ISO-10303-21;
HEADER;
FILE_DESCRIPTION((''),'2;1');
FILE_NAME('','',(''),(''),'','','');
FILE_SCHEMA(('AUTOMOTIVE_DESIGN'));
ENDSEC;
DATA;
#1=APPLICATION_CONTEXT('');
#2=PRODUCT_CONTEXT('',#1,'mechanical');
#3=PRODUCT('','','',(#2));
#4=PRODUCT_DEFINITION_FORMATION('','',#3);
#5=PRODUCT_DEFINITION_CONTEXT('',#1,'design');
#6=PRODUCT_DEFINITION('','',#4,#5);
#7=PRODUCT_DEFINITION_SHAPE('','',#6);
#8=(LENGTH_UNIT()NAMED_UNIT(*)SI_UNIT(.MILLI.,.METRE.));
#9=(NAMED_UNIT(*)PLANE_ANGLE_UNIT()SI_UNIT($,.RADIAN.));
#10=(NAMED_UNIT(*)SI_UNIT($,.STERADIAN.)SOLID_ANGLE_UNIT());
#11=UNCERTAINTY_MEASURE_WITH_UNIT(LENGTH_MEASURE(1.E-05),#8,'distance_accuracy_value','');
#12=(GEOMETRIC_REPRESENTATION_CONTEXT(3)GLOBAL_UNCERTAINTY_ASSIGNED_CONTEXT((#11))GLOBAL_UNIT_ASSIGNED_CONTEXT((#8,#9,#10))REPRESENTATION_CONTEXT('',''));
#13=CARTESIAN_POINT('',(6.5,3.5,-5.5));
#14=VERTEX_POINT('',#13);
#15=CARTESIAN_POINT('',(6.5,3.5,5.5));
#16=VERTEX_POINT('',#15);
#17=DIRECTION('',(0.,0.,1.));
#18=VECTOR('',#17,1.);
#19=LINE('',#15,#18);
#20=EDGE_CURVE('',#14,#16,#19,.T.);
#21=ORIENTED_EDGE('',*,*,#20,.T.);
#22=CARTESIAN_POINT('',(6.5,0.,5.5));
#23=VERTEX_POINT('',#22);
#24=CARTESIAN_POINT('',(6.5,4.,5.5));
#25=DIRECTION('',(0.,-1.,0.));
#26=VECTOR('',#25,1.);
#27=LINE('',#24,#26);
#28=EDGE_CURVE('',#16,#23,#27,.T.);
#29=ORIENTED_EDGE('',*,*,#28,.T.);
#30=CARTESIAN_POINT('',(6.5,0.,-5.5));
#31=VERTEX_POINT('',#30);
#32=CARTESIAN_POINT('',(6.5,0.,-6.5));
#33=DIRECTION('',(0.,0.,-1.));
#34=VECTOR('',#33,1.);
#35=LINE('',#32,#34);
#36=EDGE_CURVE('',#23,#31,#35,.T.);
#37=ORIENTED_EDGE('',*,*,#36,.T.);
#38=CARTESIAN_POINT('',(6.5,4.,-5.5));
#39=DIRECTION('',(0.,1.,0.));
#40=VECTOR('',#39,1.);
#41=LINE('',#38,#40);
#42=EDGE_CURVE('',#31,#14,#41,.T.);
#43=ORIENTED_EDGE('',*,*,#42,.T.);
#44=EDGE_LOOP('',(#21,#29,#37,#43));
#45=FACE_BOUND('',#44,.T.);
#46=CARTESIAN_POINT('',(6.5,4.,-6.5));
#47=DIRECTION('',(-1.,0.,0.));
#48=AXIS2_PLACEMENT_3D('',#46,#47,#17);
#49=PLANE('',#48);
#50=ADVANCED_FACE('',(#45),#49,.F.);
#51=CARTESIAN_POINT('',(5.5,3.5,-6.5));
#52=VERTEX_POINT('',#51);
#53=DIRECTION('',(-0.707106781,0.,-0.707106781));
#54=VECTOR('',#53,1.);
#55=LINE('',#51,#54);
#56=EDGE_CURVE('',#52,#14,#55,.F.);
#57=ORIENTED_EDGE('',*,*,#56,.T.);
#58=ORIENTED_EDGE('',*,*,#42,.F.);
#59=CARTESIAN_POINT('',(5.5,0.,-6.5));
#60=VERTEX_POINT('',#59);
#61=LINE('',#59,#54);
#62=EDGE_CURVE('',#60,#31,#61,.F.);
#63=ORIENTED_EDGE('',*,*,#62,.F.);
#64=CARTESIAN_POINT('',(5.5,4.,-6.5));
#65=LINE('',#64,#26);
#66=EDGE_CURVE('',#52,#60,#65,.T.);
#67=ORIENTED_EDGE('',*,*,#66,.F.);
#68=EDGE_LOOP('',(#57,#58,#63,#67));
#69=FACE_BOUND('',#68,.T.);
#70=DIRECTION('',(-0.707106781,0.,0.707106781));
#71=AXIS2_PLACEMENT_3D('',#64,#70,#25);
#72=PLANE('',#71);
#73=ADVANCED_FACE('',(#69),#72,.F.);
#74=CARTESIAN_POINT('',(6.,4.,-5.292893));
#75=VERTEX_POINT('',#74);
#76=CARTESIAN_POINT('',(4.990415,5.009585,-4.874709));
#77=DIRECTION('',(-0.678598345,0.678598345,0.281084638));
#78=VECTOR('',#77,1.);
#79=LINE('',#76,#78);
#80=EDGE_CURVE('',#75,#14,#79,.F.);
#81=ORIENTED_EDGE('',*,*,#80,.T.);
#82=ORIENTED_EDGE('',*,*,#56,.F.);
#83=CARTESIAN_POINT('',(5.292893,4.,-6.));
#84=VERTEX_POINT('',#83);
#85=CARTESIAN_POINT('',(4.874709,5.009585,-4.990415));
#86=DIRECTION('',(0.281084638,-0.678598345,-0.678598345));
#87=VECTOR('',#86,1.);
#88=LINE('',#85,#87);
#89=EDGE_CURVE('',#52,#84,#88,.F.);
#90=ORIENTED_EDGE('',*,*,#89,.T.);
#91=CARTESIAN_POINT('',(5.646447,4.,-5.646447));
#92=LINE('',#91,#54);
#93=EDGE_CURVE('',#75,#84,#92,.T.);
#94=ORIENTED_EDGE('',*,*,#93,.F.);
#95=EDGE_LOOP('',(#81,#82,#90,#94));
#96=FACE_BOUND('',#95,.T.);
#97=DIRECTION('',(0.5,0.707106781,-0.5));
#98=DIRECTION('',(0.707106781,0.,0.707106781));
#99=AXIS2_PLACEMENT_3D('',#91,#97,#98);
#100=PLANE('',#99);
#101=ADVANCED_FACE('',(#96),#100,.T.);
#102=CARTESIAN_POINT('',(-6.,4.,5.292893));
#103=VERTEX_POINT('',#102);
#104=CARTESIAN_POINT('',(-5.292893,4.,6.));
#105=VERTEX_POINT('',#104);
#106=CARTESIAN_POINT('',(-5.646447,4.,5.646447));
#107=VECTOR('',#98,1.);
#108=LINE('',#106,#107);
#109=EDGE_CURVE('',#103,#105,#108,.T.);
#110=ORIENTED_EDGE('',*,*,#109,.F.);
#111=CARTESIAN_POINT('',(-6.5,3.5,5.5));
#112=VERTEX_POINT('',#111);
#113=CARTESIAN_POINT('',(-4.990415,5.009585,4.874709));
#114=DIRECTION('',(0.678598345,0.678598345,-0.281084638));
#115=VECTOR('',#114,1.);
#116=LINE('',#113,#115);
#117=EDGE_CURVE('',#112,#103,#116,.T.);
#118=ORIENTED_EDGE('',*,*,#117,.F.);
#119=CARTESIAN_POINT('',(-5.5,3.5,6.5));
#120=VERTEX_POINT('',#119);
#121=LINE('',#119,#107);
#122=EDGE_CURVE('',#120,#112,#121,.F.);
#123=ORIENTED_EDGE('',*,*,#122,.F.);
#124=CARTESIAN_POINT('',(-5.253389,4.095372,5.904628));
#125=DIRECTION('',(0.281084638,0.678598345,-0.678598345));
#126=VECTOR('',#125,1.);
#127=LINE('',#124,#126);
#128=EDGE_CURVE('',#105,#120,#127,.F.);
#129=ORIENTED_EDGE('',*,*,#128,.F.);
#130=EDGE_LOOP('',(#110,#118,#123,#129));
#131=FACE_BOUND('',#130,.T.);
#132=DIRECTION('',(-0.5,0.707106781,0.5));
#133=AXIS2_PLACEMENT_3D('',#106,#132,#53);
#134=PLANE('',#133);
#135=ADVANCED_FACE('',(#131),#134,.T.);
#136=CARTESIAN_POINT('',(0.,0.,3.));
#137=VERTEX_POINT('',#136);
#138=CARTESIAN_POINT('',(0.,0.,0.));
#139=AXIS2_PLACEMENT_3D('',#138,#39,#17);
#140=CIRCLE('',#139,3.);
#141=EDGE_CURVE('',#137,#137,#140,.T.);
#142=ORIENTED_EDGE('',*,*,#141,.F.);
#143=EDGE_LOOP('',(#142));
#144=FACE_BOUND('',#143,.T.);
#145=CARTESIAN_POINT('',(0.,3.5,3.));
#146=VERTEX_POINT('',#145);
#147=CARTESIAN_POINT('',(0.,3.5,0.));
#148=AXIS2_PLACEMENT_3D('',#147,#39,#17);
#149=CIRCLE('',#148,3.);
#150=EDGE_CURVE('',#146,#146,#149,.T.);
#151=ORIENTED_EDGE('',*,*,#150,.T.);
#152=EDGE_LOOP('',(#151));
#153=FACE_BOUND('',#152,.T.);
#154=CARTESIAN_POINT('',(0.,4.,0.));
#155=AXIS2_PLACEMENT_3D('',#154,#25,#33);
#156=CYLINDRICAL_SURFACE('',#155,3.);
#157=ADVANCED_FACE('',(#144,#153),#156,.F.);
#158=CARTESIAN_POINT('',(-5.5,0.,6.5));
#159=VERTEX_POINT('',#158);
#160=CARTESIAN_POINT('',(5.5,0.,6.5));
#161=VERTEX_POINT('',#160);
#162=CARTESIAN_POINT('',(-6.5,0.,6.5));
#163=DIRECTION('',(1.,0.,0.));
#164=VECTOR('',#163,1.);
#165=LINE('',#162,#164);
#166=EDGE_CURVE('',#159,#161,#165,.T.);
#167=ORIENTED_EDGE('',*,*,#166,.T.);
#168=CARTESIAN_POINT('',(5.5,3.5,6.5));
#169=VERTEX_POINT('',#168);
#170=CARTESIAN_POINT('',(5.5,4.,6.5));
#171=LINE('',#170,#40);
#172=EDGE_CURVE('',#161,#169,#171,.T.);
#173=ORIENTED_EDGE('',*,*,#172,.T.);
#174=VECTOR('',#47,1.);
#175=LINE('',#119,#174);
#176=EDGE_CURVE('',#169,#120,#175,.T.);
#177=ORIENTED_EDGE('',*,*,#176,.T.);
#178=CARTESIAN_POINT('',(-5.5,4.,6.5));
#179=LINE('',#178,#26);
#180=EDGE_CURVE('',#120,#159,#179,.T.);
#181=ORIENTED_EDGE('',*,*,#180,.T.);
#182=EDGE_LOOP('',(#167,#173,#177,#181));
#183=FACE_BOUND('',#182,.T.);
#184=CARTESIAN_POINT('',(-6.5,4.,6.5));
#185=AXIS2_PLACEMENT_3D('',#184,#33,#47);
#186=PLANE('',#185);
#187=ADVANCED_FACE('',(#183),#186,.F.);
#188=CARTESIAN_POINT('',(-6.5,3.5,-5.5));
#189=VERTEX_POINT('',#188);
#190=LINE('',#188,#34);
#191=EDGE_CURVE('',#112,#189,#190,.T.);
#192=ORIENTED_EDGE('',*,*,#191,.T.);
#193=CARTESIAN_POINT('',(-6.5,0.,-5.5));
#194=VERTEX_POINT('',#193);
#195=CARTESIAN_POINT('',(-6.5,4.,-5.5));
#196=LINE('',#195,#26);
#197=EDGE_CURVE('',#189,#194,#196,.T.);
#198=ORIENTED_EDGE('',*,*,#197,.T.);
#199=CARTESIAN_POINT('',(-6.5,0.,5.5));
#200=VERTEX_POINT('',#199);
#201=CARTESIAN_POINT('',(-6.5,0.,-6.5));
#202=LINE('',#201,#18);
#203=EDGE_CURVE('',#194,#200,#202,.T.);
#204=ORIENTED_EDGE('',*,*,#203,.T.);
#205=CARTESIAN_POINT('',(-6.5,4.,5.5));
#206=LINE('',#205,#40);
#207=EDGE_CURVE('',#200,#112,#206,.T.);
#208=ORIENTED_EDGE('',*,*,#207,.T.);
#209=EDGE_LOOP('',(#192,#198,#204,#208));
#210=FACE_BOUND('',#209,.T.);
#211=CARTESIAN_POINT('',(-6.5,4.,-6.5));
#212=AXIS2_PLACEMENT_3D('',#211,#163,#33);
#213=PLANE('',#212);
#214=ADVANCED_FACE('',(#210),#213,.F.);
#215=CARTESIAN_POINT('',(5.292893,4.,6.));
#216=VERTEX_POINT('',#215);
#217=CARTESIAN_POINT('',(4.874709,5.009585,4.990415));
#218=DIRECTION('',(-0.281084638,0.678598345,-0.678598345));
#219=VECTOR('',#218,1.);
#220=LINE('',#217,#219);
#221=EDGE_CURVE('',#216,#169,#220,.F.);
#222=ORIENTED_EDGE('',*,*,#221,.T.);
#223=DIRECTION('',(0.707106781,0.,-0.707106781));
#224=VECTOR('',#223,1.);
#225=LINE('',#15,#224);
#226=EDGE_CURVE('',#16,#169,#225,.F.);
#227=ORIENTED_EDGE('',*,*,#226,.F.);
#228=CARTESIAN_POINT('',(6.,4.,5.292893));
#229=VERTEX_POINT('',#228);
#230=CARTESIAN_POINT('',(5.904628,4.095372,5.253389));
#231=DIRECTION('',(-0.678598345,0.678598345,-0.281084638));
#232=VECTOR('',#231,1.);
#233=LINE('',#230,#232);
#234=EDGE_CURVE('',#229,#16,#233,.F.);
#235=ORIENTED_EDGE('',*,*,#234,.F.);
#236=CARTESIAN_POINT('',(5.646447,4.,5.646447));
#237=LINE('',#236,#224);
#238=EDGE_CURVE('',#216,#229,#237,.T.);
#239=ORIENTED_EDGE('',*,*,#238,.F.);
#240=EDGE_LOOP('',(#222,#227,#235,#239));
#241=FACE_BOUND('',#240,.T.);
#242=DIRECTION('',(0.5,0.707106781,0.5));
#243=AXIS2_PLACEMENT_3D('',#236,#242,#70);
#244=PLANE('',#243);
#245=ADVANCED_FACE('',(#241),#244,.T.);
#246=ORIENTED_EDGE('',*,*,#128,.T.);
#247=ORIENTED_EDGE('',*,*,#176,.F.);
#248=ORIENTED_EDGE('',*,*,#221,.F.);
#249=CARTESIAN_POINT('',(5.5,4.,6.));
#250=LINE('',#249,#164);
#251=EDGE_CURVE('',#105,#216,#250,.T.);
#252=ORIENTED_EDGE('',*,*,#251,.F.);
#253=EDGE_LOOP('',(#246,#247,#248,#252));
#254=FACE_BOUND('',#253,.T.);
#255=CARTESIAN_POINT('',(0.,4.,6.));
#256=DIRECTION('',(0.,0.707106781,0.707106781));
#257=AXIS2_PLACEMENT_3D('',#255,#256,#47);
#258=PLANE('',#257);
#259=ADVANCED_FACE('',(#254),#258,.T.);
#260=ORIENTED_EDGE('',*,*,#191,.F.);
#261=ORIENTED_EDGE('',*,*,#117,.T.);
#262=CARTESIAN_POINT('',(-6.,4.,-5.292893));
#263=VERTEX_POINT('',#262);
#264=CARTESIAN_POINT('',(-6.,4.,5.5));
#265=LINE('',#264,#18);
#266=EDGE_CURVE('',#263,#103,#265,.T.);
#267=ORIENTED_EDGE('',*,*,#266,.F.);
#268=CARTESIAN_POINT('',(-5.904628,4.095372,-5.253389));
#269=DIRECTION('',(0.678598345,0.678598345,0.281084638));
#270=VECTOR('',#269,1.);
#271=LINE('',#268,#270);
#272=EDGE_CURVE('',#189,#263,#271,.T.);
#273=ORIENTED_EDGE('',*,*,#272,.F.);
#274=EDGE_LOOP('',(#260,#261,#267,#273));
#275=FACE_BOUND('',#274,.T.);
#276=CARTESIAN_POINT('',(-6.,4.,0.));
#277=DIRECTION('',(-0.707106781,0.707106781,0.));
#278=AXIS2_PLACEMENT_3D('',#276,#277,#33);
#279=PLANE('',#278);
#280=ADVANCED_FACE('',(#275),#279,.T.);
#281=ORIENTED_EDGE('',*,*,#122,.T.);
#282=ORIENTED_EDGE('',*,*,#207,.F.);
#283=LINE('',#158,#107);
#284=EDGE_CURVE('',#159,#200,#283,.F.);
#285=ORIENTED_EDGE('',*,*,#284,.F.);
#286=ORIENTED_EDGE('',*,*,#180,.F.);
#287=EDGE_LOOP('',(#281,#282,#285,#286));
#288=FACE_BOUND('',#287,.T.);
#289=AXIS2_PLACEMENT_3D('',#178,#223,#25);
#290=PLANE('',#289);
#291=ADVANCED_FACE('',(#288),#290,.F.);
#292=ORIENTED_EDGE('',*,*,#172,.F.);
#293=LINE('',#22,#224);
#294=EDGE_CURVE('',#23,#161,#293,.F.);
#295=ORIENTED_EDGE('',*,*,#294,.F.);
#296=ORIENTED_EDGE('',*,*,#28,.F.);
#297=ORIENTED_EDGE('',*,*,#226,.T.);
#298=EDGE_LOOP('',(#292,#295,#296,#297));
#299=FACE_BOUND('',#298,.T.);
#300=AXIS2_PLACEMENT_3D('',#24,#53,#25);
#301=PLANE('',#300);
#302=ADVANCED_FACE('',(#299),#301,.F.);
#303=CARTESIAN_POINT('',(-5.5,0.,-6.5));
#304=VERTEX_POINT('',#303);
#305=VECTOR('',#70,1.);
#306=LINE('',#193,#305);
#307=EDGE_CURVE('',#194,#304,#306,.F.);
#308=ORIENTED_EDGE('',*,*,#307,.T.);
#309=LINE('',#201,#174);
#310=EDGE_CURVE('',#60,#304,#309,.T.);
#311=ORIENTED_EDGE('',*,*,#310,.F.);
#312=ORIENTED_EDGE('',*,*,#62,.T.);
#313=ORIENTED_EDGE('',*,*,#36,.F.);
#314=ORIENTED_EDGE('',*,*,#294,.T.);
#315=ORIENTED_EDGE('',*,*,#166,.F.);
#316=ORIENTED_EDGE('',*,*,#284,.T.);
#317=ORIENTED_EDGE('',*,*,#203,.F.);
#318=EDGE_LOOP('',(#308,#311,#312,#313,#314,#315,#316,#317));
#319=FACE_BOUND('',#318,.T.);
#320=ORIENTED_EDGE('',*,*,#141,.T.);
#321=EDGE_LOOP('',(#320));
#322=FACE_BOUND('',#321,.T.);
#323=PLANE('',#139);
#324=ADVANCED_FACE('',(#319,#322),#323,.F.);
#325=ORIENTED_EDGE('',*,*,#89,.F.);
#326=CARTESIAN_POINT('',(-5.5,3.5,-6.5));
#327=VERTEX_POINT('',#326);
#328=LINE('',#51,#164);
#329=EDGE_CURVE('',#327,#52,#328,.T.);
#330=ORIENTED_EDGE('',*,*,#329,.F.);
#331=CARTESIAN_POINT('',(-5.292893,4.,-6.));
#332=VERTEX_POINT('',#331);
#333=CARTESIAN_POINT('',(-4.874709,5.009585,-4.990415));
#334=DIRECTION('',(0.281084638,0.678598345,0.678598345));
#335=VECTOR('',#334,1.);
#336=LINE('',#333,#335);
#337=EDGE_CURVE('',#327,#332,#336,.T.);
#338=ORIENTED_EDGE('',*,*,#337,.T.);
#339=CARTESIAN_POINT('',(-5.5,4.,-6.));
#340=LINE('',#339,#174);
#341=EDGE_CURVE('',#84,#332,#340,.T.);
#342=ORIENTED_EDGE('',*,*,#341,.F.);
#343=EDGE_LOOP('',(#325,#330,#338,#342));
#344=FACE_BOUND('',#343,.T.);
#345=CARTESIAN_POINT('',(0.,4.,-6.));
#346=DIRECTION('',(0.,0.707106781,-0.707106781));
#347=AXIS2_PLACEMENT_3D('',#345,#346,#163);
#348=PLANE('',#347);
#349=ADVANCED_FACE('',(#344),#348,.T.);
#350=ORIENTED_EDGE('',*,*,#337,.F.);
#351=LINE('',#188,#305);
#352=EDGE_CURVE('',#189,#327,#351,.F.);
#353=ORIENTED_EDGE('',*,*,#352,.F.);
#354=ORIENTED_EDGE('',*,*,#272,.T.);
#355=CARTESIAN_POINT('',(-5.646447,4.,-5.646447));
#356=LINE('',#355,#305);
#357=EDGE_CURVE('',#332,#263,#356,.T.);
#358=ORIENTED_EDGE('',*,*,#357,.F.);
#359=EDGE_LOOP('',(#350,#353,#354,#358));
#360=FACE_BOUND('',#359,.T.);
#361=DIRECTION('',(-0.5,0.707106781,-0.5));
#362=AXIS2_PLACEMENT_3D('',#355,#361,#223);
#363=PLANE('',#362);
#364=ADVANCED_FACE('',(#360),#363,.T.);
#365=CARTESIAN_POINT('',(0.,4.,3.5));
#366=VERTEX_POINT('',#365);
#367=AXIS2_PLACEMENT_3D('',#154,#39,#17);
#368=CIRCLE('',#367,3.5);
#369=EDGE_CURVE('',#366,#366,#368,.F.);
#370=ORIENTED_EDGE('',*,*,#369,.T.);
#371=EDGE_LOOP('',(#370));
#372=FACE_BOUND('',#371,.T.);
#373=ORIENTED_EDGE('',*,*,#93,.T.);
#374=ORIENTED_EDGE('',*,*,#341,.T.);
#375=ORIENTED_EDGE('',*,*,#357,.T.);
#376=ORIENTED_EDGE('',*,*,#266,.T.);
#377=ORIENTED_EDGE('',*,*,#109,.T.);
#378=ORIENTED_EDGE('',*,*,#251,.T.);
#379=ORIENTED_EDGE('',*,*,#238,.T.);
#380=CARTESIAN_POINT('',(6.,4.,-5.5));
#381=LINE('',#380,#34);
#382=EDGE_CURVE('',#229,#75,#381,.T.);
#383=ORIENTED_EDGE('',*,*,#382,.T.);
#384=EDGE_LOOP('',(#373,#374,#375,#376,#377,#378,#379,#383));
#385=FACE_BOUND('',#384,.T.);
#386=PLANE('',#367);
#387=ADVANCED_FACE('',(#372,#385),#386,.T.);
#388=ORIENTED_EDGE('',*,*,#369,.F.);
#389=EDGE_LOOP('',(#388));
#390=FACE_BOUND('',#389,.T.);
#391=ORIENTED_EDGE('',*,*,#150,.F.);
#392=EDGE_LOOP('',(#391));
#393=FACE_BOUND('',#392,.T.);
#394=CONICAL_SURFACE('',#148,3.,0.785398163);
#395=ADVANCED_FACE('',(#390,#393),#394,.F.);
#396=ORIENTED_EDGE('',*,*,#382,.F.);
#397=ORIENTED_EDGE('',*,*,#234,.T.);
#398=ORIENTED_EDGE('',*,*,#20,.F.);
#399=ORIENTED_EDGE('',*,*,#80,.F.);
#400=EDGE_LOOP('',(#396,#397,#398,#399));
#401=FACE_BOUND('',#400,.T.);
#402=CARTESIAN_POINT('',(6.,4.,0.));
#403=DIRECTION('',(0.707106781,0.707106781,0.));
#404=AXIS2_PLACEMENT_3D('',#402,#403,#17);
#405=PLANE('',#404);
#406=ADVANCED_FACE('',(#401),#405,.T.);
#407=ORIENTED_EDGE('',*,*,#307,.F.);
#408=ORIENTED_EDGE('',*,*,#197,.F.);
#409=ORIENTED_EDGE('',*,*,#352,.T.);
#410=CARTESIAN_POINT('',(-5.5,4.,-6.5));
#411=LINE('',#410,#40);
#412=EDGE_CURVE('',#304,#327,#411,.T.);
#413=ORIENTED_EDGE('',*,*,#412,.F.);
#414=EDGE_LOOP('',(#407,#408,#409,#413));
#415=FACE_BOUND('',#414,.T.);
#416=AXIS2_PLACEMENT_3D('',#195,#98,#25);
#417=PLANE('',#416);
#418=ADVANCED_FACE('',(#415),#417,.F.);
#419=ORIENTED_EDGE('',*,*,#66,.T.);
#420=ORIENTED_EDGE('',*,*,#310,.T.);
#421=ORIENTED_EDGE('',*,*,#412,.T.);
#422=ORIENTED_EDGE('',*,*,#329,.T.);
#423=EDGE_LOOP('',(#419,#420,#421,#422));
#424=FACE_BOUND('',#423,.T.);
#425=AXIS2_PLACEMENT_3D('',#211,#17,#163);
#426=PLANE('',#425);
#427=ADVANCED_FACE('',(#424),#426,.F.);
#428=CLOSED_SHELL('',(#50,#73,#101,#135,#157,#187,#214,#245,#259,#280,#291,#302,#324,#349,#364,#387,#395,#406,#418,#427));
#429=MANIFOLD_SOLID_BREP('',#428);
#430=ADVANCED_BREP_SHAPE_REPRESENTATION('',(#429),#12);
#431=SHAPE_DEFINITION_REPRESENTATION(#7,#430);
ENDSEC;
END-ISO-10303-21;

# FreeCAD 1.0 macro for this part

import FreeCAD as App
import Part
import Sketcher
Q = App.Units.Quantity


def edges_at(feature, points):
    """Names of the edges that pass closest to the given points."""
    edges = feature.Shape.Edges
    near = lambda p: min(range(len(edges)), key=lambda i: edges[i].distToShape(Part.Vertex(*p))[0])
    return sorted({f"Edge{near(p) + 1}" for p in points})


def add_polygon(sketch, points):
    """Adds a closed chain of lines whose ends are joined by coincident constraints."""
    first, n = sketch.GeometryCount, len(points)
    for a, b in zip(points, points[1:] + points[:1]):
        sketch.addGeometry(Part.LineSegment(App.Vector(*a, 0), App.Vector(*b, 0)), False)
    for i in range(n):
        sketch.addConstraint(Sketcher.Constraint("Coincident", first + i, 2, first + (i + 1) % n, 1))

doc = App.newDocument("Part")
body = doc.addObject("PartDesign::Body", "Body")

# Sketch on XZ plane
sketch1 = doc.addObject("Sketcher::SketchObject", "Sketch")
body.addObject(sketch1)
sketch1.AttachmentSupport = (doc.XZ_Plane, [""])
sketch1.MapMode = "FlatFace"
add_polygon(sketch1, [(-6.5, -6.5), (-6.5, 6.5), (6.5, 6.5), (6.5, -6.5)])  # lines 0-3
sketch1.addGeometry(Part.Circle(App.Vector(0, 0, 0), App.Vector(0, 0, 1), 3), False)  # 4
sketch1.addConstraint([
    Sketcher.Constraint("Vertical", 0),
    Sketcher.Constraint("Horizontal", 1),
    Sketcher.Constraint("Vertical", 2),
    Sketcher.Constraint("Horizontal", 3),
    Sketcher.Constraint("Coincident", 4, 3, -1, 1),
    Sketcher.Constraint("Symmetric", 0, 2, 2, 2, -1, 1),
    Sketcher.Constraint("Equal", 3, 0),
    Sketcher.Constraint("Diameter", 4, Q("6 mm")),
    Sketcher.Constraint("DistanceX", 1, 1, 1, 2, Q("13 mm")),
])
pad1 = doc.addObject("PartDesign::Pad", "Pad")
body.addObject(pad1)
pad1.Profile = sketch1
pad1.Length = 4
pad1.Reversed = True
doc.recompute()

chamfer = doc.addObject("PartDesign::Chamfer", "Chamfer")
body.addObject(chamfer)
chamfer.Base = (pad1, edges_at(pad1, [
    (6.5, 2, 6.5),
    (-6.5, 2, 6.5),
    (-6.5, 2, -6.5),
    (6.5, 2, -6.5),
]))
chamfer.Size = 1
doc.recompute()

chamfer2 = doc.addObject("PartDesign::Chamfer", "Chamfer001")
body.addObject(chamfer2)
chamfer2.Base = (chamfer, edges_at(chamfer, [
    (-3, 4, 0),
    (-6.5, 4, 0),
    (0, 4, -6.5),
    (6.5, 4, 0),
    (0, 4, 6.5),
    (6, 4, 6),
    (6, 4, -6),
    (-6, 4, 6),
    (-6, 4, -6),
]))
chamfer2.Size = 0.5

doc.recompute()
